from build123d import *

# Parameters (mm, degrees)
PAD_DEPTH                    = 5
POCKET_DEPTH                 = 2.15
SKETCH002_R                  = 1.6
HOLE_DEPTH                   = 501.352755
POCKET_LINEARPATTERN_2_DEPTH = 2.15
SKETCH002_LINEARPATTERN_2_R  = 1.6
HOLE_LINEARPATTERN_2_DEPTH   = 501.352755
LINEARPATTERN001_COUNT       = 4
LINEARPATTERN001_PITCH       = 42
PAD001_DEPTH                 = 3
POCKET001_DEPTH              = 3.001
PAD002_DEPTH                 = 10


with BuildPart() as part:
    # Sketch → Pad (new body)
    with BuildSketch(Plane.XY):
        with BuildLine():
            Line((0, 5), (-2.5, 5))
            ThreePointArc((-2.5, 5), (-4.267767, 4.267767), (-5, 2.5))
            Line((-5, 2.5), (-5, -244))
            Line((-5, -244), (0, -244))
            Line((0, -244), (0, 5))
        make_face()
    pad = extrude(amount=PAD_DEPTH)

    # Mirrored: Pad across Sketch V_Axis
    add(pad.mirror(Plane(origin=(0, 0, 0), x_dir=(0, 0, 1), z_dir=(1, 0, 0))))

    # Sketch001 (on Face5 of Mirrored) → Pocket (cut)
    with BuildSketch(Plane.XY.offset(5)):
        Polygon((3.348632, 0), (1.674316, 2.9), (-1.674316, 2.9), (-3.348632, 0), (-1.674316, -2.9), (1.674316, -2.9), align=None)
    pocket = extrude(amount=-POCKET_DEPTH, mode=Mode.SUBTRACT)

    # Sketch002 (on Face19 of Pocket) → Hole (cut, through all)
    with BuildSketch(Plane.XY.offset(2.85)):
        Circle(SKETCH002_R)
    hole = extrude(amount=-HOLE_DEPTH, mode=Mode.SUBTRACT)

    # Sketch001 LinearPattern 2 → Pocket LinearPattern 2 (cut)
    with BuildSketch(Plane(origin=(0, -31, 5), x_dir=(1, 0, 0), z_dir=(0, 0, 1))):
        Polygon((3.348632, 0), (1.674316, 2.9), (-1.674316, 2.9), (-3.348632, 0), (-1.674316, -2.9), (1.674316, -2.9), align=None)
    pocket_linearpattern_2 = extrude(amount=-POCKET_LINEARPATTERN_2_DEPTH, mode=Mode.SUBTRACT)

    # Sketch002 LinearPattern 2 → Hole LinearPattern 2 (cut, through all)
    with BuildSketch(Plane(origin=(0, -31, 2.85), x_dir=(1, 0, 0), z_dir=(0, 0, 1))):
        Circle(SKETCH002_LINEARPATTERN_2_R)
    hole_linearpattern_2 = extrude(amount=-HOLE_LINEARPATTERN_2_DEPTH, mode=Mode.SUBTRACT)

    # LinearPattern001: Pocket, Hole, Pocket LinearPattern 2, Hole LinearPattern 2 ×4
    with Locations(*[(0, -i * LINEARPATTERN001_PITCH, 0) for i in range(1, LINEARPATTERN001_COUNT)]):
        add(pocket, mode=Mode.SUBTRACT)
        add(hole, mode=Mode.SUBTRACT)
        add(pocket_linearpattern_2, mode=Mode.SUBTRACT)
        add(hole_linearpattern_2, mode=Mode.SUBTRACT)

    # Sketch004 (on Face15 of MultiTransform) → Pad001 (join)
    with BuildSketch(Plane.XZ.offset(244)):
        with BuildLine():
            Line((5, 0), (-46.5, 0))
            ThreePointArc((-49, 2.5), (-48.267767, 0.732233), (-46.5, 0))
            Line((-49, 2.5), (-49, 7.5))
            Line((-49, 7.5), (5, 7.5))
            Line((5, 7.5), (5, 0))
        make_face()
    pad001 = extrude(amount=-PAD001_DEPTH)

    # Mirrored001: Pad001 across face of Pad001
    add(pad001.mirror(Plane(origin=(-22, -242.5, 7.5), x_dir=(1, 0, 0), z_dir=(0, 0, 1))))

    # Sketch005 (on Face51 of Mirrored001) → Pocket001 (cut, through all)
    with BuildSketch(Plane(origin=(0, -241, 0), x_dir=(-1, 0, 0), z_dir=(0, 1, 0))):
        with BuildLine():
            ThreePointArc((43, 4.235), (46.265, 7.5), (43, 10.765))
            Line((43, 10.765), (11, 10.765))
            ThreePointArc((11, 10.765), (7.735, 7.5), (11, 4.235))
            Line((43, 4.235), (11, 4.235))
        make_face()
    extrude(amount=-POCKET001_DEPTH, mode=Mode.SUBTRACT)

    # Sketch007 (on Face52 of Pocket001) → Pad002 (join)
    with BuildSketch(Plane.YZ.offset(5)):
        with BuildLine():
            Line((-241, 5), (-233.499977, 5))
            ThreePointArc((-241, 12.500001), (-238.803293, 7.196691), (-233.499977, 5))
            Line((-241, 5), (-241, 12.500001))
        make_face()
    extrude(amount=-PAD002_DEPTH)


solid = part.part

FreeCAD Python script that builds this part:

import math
import FreeCAD as App
import Part
import Sketcher
from FreeCAD import Vector
Q = App.Units.Quantity

doc = App.newDocument("Part")
body = doc.addObject("PartDesign::Body", "Body")

# Sketch on XY plane
sketch1 = body.newObject("Sketcher::SketchObject", "Sketch")
sketch1.AttachmentSupport = (doc.getObject("XY_Plane"), [""])
sketch1.MapMode = "FlatFace"
sketch1.addGeometry([
    Part.LineSegment(Vector(0, 5, 0), Vector(-2.5, 5, 0)),  # 0
    Part.ArcOfCircle(Part.Circle(Vector(-2.5, 2.5, 0), Vector(0, 0, 1), 2.5), math.radians(90), math.radians(180)),  # 1
    Part.LineSegment(Vector(-5, 2.5, 0), Vector(-5, -244, 0)),  # 2
    Part.LineSegment(Vector(-5, -244, 0), Vector(0, -244, 0)),  # 3
    Part.LineSegment(Vector(0, -244, 0), Vector(0, 5, 0)),  # 4
], False)
sketch1.addConstraint([
    Sketcher.Constraint("Tangent", 0, 2, 1, 1),
    Sketcher.Constraint("Tangent", 1, 2, 2, 1),
    Sketcher.Constraint("Coincident", 2, 2, 3, 1),
    Sketcher.Constraint("Coincident", 3, 2, 4, 1),
    Sketcher.Constraint("Coincident", 4, 2, 0, 1),
    Sketcher.Constraint("Horizontal", 0),
    Sketcher.Constraint("Vertical", 2),
    Sketcher.Constraint("Horizontal", 3),
    Sketcher.Constraint("Vertical", 4),
    Sketcher.Constraint("PointOnObject", 3, 2, -2),
    Sketcher.Constraint("Radius", 1, 2.5),
    Sketcher.Constraint("DistanceX", 3, 1, 3, 2, 5.0),
    Sketcher.Constraint("DistanceY", 4, 1, 4, 2, 249.0),
    Sketcher.Constraint("DistanceY", -1, 1, 0, 2, 5.0),
])
pad1 = body.newObject("PartDesign::Pad", "Pad")
pad1.Profile = sketch1
pad1.Length = 5
doc.recompute()

mirrored = body.newObject("PartDesign::Mirrored", "Mirrored")
mirrored.Originals = [pad1]
mirrored.MirrorPlane = (doc.getObject("YZ_Plane"), [""])
body.Tip = mirrored

# Sketch on XY plane
sketch2 = body.newObject("Sketcher::SketchObject", "Sketch001")
sketch2.AttachmentSupport = (doc.getObject("XY_Plane"), [""])
sketch2.MapMode = "FlatFace"
sketch2.AttachmentOffset = App.Placement(Vector(0, 0, 5), App.Rotation())
sketch2.addGeometry([
    Part.LineSegment(Vector(3.3, 0, 0), Vector(1.7, 2.9, 0)),  # 0
    Part.LineSegment(Vector(1.7, 2.9, 0), Vector(-1.7, 2.9, 0)),  # 1
    Part.LineSegment(Vector(-1.7, 2.9, 0), Vector(-3.3, 0, 0)),  # 2
    Part.LineSegment(Vector(-3.3, 0, 0), Vector(-1.7, -2.9, 0)),  # 3
    Part.LineSegment(Vector(-1.7, -2.9, 0), Vector(1.7, -2.9, 0)),  # 4
    Part.LineSegment(Vector(1.7, -2.9, 0), Vector(3.3, 0, 0)),  # 5
], False)
sketch2.addConstraint([
    Sketcher.Constraint("Coincident", 0, 2, 1, 1),
    Sketcher.Constraint("Coincident", 1, 2, 2, 1),
    Sketcher.Constraint("Coincident", 2, 2, 3, 1),
    Sketcher.Constraint("Coincident", 3, 2, 4, 1),
    Sketcher.Constraint("Coincident", 4, 2, 5, 1),
    Sketcher.Constraint("Coincident", 5, 2, 0, 1),
    Sketcher.Constraint("Horizontal", 1),
    Sketcher.Constraint("Horizontal", 4),
    Sketcher.Constraint("Symmetric", 0, 2, 3, 2, -1, 1),
    Sketcher.Constraint("Symmetric", 2, 2, 5, 2, -1, 1),
    Sketcher.Constraint("PointOnObject", 2, 2, -1),
    Sketcher.Constraint("Parallel", 2, 5),
    Sketcher.Constraint("Vertical", 1, 2, 3, 2),
    Sketcher.Constraint("Angle", 0, Q("120.000003 deg")),
    Sketcher.Constraint("DistanceY", -1, 1, 0, 2, 2.9),
    Sketcher.Constraint("DistanceX", 1, 2, 1, 1, 3.348632),
])
pocket1 = body.newObject("PartDesign::Pocket", "Pocket")
pocket1.Profile = sketch2
pocket1.Length = 2.15

# Sketch on XY plane
sketch3 = body.newObject("Sketcher::SketchObject", "Sketch002")
sketch3.AttachmentSupport = (doc.getObject("XY_Plane"), [""])
sketch3.MapMode = "FlatFace"
sketch3.AttachmentOffset = App.Placement(Vector(0, 0, 2.85), App.Rotation())
sketch3.addGeometry(Part.Circle(Vector(0, 0, 0), Vector(0, 0, 1), 1.6), False)
sketch3.addConstraint([
    Sketcher.Constraint("Coincident", 0, 3, -1, 1),
    Sketcher.Constraint("Diameter", 0, 3.2),
])
pocket2 = body.newObject("PartDesign::Pocket", "Pocket001")
pocket2.Profile = sketch3
pocket2.Type = "ThroughAll"

# Sketch on XY plane
sketch4 = body.newObject("Sketcher::SketchObject", "Sketch003")
sketch4.AttachmentSupport = (doc.getObject("XY_Plane"), [""])
sketch4.MapMode = "FlatFace"
sketch4.AttachmentOffset = App.Placement(Vector(0, 0, 5), App.Rotation())
sketch4.addGeometry([
    Part.LineSegment(Vector(3.3, -31, 0), Vector(1.7, -28.1, 0)),  # 0
    Part.LineSegment(Vector(1.7, -28.1, 0), Vector(-1.7, -28.1, 0)),  # 1
    Part.LineSegment(Vector(-1.7, -28.1, 0), Vector(-3.3, -31, 0)),  # 2
    Part.LineSegment(Vector(-3.3, -31, 0), Vector(-1.7, -33.9, 0)),  # 3
    Part.LineSegment(Vector(-1.7, -33.9, 0), Vector(1.7, -33.9, 0)),  # 4
    Part.LineSegment(Vector(1.7, -33.9, 0), Vector(3.3, -31, 0)),  # 5
], False)
sketch4.addConstraint([
    Sketcher.Constraint("Coincident", 0, 2, 1, 1),
    Sketcher.Constraint("Coincident", 1, 2, 2, 1),
    Sketcher.Constraint("Coincident", 2, 2, 3, 1),
    Sketcher.Constraint("Coincident", 3, 2, 4, 1),
    Sketcher.Constraint("Coincident", 4, 2, 5, 1),
    Sketcher.Constraint("Coincident", 5, 2, 0, 1),
    Sketcher.Constraint("Horizontal", 1),
    Sketcher.Constraint("Horizontal", 4),
    Sketcher.Constraint("Symmetric", 2, 2, 5, 2, -2),
    Sketcher.Constraint("Parallel", 0, 3),
    Sketcher.Constraint("Parallel", 2, 5),
    Sketcher.Constraint("Vertical", 1, 2, 3, 2),
    Sketcher.Constraint("Vertical", 0, 2, 4, 2),
    Sketcher.Constraint("Angle", 0, Q("120.000003 deg")),
    Sketcher.Constraint("DistanceY", 2, 2, -1, 1, 31.0),
    Sketcher.Constraint("DistanceY", 0, 2, -1, 1, 28.1),
    Sketcher.Constraint("DistanceX", 1, 2, 1, 1, 3.348632),
])
pocket3 = body.newObject("PartDesign::Pocket", "Pocket002")
pocket3.Profile = sketch4
pocket3.Length = 2.15

# Sketch on XY plane
sketch5 = body.newObject("Sketcher::SketchObject", "Sketch004")
sketch5.AttachmentSupport = (doc.getObject("XY_Plane"), [""])
sketch5.MapMode = "FlatFace"
sketch5.AttachmentOffset = App.Placement(Vector(0, 0, 2.85), App.Rotation())
sketch5.addGeometry(Part.Circle(Vector(0, -31, 0), Vector(0, 0, 1), 1.6), False)
sketch5.addConstraint([
    Sketcher.Constraint("PointOnObject", 0, 3, -2),
    Sketcher.Constraint("Diameter", 0, 3.2),
    Sketcher.Constraint("DistanceY", 0, 3, -1, 1, 31.0),
])
pocket4 = body.newObject("PartDesign::Pocket", "Pocket003")
pocket4.Profile = sketch5
pocket4.Type = "ThroughAll"
doc.recompute()

linearpattern = body.newObject("PartDesign::LinearPattern", "LinearPattern")
linearpattern.Originals = [pocket1, pocket2, pocket3, pocket4]
linearpattern.Direction = (doc.getObject("Y_Axis"), [""])
linearpattern.Mode = "offset"
linearpattern.Offset = 42
linearpattern.Occurrences = 4
linearpattern.Reversed = True
body.Tip = linearpattern

# Sketch on XZ plane
sketch6 = body.newObject("Sketcher::SketchObject", "Sketch005")
sketch6.AttachmentSupport = (doc.getObject("XZ_Plane"), [""])
sketch6.MapMode = "FlatFace"
sketch6.AttachmentOffset = App.Placement(Vector(0, 0, 244), App.Rotation())
sketch6.addGeometry([
    Part.LineSegment(Vector(-46.5, 0, 0), Vector(5, 0, 0)),  # 0
    Part.LineSegment(Vector(5, 0, 0), Vector(5, 7.5, 0)),  # 1
    Part.LineSegment(Vector(5, 7.5, 0), Vector(-49, 7.5, 0)),  # 2
    Part.LineSegment(Vector(-49, 7.5, 0), Vector(-49, 2.5, 0)),  # 3
    Part.ArcOfCircle(Part.Circle(Vector(-46.5, 2.5, 0), Vector(0, 0, 1), 2.5), math.radians(180), math.radians(270)),  # 4
], False)
sketch6.addConstraint([
    Sketcher.Constraint("Coincident", 0, 2, 1, 1),
    Sketcher.Constraint("Coincident", 1, 2, 2, 1),
    Sketcher.Constraint("Coincident", 2, 2, 3, 1),
    Sketcher.Constraint("Tangent", 3, 2, 4, 1),
    Sketcher.Constraint("Tangent", 4, 2, 0, 1),
    Sketcher.Constraint("Horizontal", 0),
    Sketcher.Constraint("Vertical", 1),
    Sketcher.Constraint("Horizontal", 2),
    Sketcher.Constraint("Vertical", 3),
    Sketcher.Constraint("PointOnObject", 0, 2, -1),
    Sketcher.Constraint("Radius", 4, 2.5),
    Sketcher.Constraint("DistanceX", 2, 2, 2, 1, 54.0),
    Sketcher.Constraint("DistanceY", 3, 2, 3, 1, 5.0),
    Sketcher.Constraint("DistanceX", -1, 1, 0, 2, 5.0),
])
pad2 = body.newObject("PartDesign::Pad", "Pad001")
pad2.Profile = sketch6
pad2.Length = 3
pad2.Reversed = True
doc.recompute()

datumplane = body.newObject("PartDesign::Plane", "DatumPlane")
datumplane.AttachmentSupport = (doc.getObject("XY_Plane"), [""])
datumplane.MapMode = "FlatFace"
datumplane.AttachmentOffset = App.Placement(Vector(0, 0, 7.5), App.Rotation())
mirrored2 = body.newObject("PartDesign::Mirrored", "Mirrored001")
mirrored2.Originals = [pad2]
mirrored2.MirrorPlane = (datumplane, [""])
body.Tip = mirrored2

# Sketch on XZ plane
sketch7 = body.newObject("Sketcher::SketchObject", "Sketch006")
sketch7.AttachmentSupport = (doc.getObject("XZ_Plane"), [""])
sketch7.MapMode = "FlatFace"
sketch7.AttachmentOffset = App.Placement(Vector(0, 0, 241), App.Rotation())
sketch7.addGeometry([
    Part.ArcOfCircle(Part.Circle(Vector(-43, 7.5, 0), Vector(0, 0, 1), 3.3), math.radians(90), math.radians(270)),
    Part.LineSegment(Vector(-43, 10.8, 0), Vector(-11, 10.8, 0)),
    Part.ArcOfCircle(Part.Circle(Vector(-11, 7.5, 0), Vector(0, 0, 1), 3.3), math.radians(-90), math.radians(90)),
    Part.LineSegment(Vector(-11, 4.2, 0), Vector(-43, 4.2, 0)),
], False)
sketch7.addConstraint([
    Sketcher.Constraint("Tangent", 0, 1, 1, 1),
    Sketcher.Constraint("Tangent", 1, 2, 2, 2),
    Sketcher.Constraint("Tangent", 2, 1, 3, 1),
    Sketcher.Constraint("Tangent", 3, 2, 0, 2),
    Sketcher.Constraint("Horizontal", 1),
    Sketcher.Constraint("Horizontal", 3),
    Sketcher.Constraint("DistanceX", 1, 1, 1, 2, 32.0),
    Sketcher.Constraint("DistanceX", 0, 3, -1, 1, 43.0),
    Sketcher.Constraint("Radius", 0, 3.265),
    Sketcher.Constraint("DistanceY", -1, 1, 0, 3, 7.5),
])
pocket5 = body.newObject("PartDesign::Pocket", "Pocket004")
pocket5.Profile = sketch7
pocket5.Type = "ThroughAll"
pocket5.Reversed = True

# Sketch on YZ plane
sketch8 = body.newObject("Sketcher::SketchObject", "Sketch007")
sketch8.AttachmentSupport = (doc.getObject("YZ_Plane"), [""])
sketch8.MapMode = "FlatFace"
sketch8.AttachmentOffset = App.Placement(Vector(0, 0, 5), App.Rotation())
sketch8.addGeometry([
    Part.LineSegment(Vector(-241, 5, 0), Vector(-233, 5, 0)),
    Part.ArcOfCircle(Part.Circle(Vector(-234, 12, 0), Vector(0, 0, 1), 7), math.radians(180), math.radians(270)),
    Part.LineSegment(Vector(-241, 13, 0), Vector(-241, 5, 0)),
], False)
sketch8.addConstraint([
    Sketcher.Constraint("Coincident", 0, 2, 1, 2),
    Sketcher.Constraint("Tangent", 1, 1, 2, 1),
    Sketcher.Constraint("Coincident", 2, 2, 0, 1),
    Sketcher.Constraint("Horizontal", 0),
    Sketcher.Constraint("Vertical", 2),
    Sketcher.Constraint("Radius", 1, 7.5),
    Sketcher.Constraint("DistanceY", -1, 1, 0, 2, 5.0),
    Sketcher.Constraint("DistanceX", 1, 1, -1, 1, 241.0),
    Sketcher.Constraint("DistanceX", 0, 1, 0, 2, 7.500023),
])
pad3 = body.newObject("PartDesign::Pad", "Pad002")
pad3.Profile = sketch8
pad3.Length = 10
pad3.Reversed = True

doc.recompute()
